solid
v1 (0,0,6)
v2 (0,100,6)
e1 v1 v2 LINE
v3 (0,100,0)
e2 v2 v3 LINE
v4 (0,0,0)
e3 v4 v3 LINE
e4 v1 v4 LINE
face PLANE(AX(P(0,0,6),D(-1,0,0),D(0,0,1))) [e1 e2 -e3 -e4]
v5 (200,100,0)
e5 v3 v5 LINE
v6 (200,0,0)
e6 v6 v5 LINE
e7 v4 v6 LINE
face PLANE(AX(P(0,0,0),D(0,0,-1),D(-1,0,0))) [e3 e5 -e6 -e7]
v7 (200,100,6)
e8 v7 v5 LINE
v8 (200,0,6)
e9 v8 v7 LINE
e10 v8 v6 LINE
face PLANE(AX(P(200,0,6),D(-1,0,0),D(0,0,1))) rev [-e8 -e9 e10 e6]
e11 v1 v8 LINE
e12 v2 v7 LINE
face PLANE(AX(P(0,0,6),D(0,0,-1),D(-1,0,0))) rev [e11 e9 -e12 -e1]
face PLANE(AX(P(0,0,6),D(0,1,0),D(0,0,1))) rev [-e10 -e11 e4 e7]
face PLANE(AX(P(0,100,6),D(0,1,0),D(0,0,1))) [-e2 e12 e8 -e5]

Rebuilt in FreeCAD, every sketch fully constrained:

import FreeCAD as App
import Part
import Sketcher
from FreeCAD import Vector


def add_polygon(sketch, points):
    """Adds a closed chain of lines whose ends are joined by coincident constraints."""
    first, n = sketch.GeometryCount, len(points)
    for a, b in zip(points, points[1:] + points[:1]):
        sketch.addGeometry(Part.LineSegment(App.Vector(*a, 0), App.Vector(*b, 0)), False)
    for i in range(n):
        sketch.addConstraint(Sketcher.Constraint("Coincident", first + i, 2, first + (i + 1) % n, 1))

doc = App.newDocument("Part")
body = doc.addObject("PartDesign::Body", "Body")

# Sketch on XY plane
sketch1 = body.newObject("Sketcher::SketchObject", "Sketch")
sketch1.AttachmentSupport = (doc.getObject("XY_Plane"), [""])
sketch1.MapMode = "FlatFace"
add_polygon(sketch1, [(0, 100), (0, 0), (200, 0), (200, 100)])  # lines 0-3
sketch1.addConstraint(Sketcher.Constraint("Vertical", 0))
sketch1.addConstraint(Sketcher.Constraint("Horizontal", 1))
sketch1.addConstraint(Sketcher.Constraint("Vertical", 2))
sketch1.addConstraint(Sketcher.Constraint("Horizontal", 3))
sketch1.addConstraint(Sketcher.Constraint("Coincident", 0, 2, -1, 1))
sketch1.addConstraint(Sketcher.Constraint("DistanceX", 1, 1, 1, 2, 200.0))
sketch1.addConstraint(Sketcher.Constraint("DistanceY", 0, 2, 0, 1, 100.0))
pad1 = body.newObject("PartDesign::Pad", "Pad")
pad1.Profile = sketch1
pad1.Length = 6

doc.recompute()
